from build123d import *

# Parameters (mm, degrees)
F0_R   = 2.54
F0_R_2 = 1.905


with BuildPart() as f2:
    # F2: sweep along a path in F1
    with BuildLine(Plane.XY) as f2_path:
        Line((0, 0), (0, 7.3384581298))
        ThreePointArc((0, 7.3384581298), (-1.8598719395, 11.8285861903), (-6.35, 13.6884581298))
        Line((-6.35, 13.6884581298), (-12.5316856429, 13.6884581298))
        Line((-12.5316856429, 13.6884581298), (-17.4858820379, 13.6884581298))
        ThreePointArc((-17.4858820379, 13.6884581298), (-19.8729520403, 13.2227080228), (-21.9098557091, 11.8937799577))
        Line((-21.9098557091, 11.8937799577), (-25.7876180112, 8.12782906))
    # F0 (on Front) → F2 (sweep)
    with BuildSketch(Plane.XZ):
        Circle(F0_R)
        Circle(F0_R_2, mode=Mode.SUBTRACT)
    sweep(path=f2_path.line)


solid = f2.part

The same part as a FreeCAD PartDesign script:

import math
import FreeCAD as App
import Part
import Sketcher
from FreeCAD import Vector
Q = App.Units.Quantity

doc = App.newDocument("Part")
body = doc.addObject("PartDesign::Body", "Body")

sketch1 = doc.addObject("Sketcher::SketchObject", "Sketch")
body.addObject(sketch1)
sketch1.AttachmentSupport = (doc.XZ_Plane, [""])
sketch1.MapMode = "FlatFace"
sketch1.addGeometry(Part.Circle(Vector(0, 0, 0), Vector(0, 0, 1), 2.5), False)
sketch1.addGeometry(Part.Circle(Vector(0, 0, 0), Vector(0, 0, 1), 1.9), False)
sketch1.addConstraint(Sketcher.Constraint("Coincident", 0, 3, -1, 1))
sketch1.addConstraint(Sketcher.Constraint("Coincident", 1, 3, -1, 1))
sketch1.addConstraint(Sketcher.Constraint("Diameter", 0, Q("0.2 in")))
sketch1.addConstraint(Sketcher.Constraint("Diameter", 1, Q("0.15 in")))

sketch2 = doc.addObject("Sketcher::SketchObject", "Sketch001")
body.addObject(sketch2)
sketch2.AttachmentSupport = (doc.XY_Plane, [""])
sketch2.MapMode = "FlatFace"
sketch2.addGeometry(Part.LineSegment(Vector(0, 0, 0), Vector(0, 7.3, 0)), False)
sketch2.addGeometry(Part.ArcOfCircle(Part.Circle(Vector(-6.3, 7.3, 0), Vector(0, 0, 1), 6.3), math.radians(0), math.radians(90)), False)
sketch2.addGeometry(Part.LineSegment(Vector(-6.3, 13.7, 0), Vector(-17.5, 13.7, 0)), False)
sketch2.addGeometry(Part.ArcOfCircle(Part.Circle(Vector(-17.5, 7.3, 0), Vector(0, 0, 1), 6.3), math.radians(90), math.radians(134)), False)
sketch2.addGeometry(Part.LineSegment(Vector(-21.9, 11.9, 0), Vector(-25.8, 8.1, 0)), False)
sketch2.addConstraint(Sketcher.Constraint("Tangent", 0, 2, 1, 1))
sketch2.addConstraint(Sketcher.Constraint("Tangent", 1, 2, 2, 1))
sketch2.addConstraint(Sketcher.Constraint("Tangent", 2, 2, 3, 1))
sketch2.addConstraint(Sketcher.Constraint("Tangent", 3, 2, 4, 1))
sketch2.addConstraint(Sketcher.Constraint("Vertical", 0))
sketch2.addConstraint(Sketcher.Constraint("Horizontal", 2))
sketch2.addConstraint(Sketcher.Constraint("Coincident", 0, 1, -1, 1))
sketch2.addConstraint(Sketcher.Constraint("Equal", 1, 3))
sketch2.addConstraint(Sketcher.Constraint("Radius", 1, Q("0.25 in")))
sketch2.addConstraint(Sketcher.Constraint("Distance", 4, Q("5.4055 mm")))
sketch2.addConstraint(Sketcher.Constraint("DistanceY", 0, 1, 0, 2, Q("7.338458 mm")))
sketch2.addConstraint(Sketcher.Constraint("DistanceX", 2, 2, 2, 1, Q("11.135882 mm")))
sketch2.addConstraint(Sketcher.Constraint("DistanceY", -1, 1, 3, 2, Q("11.89378 mm")))
doc.recompute()

additivepipe = doc.addObject("PartDesign::AdditivePipe", "AdditivePipe")
body.addObject(additivepipe)
additivepipe.Profile = sketch1
additivepipe.Spine = (sketch2, ["Edge1", "Edge2", "Edge3", "Edge4", "Edge5"])

doc.recompute()
